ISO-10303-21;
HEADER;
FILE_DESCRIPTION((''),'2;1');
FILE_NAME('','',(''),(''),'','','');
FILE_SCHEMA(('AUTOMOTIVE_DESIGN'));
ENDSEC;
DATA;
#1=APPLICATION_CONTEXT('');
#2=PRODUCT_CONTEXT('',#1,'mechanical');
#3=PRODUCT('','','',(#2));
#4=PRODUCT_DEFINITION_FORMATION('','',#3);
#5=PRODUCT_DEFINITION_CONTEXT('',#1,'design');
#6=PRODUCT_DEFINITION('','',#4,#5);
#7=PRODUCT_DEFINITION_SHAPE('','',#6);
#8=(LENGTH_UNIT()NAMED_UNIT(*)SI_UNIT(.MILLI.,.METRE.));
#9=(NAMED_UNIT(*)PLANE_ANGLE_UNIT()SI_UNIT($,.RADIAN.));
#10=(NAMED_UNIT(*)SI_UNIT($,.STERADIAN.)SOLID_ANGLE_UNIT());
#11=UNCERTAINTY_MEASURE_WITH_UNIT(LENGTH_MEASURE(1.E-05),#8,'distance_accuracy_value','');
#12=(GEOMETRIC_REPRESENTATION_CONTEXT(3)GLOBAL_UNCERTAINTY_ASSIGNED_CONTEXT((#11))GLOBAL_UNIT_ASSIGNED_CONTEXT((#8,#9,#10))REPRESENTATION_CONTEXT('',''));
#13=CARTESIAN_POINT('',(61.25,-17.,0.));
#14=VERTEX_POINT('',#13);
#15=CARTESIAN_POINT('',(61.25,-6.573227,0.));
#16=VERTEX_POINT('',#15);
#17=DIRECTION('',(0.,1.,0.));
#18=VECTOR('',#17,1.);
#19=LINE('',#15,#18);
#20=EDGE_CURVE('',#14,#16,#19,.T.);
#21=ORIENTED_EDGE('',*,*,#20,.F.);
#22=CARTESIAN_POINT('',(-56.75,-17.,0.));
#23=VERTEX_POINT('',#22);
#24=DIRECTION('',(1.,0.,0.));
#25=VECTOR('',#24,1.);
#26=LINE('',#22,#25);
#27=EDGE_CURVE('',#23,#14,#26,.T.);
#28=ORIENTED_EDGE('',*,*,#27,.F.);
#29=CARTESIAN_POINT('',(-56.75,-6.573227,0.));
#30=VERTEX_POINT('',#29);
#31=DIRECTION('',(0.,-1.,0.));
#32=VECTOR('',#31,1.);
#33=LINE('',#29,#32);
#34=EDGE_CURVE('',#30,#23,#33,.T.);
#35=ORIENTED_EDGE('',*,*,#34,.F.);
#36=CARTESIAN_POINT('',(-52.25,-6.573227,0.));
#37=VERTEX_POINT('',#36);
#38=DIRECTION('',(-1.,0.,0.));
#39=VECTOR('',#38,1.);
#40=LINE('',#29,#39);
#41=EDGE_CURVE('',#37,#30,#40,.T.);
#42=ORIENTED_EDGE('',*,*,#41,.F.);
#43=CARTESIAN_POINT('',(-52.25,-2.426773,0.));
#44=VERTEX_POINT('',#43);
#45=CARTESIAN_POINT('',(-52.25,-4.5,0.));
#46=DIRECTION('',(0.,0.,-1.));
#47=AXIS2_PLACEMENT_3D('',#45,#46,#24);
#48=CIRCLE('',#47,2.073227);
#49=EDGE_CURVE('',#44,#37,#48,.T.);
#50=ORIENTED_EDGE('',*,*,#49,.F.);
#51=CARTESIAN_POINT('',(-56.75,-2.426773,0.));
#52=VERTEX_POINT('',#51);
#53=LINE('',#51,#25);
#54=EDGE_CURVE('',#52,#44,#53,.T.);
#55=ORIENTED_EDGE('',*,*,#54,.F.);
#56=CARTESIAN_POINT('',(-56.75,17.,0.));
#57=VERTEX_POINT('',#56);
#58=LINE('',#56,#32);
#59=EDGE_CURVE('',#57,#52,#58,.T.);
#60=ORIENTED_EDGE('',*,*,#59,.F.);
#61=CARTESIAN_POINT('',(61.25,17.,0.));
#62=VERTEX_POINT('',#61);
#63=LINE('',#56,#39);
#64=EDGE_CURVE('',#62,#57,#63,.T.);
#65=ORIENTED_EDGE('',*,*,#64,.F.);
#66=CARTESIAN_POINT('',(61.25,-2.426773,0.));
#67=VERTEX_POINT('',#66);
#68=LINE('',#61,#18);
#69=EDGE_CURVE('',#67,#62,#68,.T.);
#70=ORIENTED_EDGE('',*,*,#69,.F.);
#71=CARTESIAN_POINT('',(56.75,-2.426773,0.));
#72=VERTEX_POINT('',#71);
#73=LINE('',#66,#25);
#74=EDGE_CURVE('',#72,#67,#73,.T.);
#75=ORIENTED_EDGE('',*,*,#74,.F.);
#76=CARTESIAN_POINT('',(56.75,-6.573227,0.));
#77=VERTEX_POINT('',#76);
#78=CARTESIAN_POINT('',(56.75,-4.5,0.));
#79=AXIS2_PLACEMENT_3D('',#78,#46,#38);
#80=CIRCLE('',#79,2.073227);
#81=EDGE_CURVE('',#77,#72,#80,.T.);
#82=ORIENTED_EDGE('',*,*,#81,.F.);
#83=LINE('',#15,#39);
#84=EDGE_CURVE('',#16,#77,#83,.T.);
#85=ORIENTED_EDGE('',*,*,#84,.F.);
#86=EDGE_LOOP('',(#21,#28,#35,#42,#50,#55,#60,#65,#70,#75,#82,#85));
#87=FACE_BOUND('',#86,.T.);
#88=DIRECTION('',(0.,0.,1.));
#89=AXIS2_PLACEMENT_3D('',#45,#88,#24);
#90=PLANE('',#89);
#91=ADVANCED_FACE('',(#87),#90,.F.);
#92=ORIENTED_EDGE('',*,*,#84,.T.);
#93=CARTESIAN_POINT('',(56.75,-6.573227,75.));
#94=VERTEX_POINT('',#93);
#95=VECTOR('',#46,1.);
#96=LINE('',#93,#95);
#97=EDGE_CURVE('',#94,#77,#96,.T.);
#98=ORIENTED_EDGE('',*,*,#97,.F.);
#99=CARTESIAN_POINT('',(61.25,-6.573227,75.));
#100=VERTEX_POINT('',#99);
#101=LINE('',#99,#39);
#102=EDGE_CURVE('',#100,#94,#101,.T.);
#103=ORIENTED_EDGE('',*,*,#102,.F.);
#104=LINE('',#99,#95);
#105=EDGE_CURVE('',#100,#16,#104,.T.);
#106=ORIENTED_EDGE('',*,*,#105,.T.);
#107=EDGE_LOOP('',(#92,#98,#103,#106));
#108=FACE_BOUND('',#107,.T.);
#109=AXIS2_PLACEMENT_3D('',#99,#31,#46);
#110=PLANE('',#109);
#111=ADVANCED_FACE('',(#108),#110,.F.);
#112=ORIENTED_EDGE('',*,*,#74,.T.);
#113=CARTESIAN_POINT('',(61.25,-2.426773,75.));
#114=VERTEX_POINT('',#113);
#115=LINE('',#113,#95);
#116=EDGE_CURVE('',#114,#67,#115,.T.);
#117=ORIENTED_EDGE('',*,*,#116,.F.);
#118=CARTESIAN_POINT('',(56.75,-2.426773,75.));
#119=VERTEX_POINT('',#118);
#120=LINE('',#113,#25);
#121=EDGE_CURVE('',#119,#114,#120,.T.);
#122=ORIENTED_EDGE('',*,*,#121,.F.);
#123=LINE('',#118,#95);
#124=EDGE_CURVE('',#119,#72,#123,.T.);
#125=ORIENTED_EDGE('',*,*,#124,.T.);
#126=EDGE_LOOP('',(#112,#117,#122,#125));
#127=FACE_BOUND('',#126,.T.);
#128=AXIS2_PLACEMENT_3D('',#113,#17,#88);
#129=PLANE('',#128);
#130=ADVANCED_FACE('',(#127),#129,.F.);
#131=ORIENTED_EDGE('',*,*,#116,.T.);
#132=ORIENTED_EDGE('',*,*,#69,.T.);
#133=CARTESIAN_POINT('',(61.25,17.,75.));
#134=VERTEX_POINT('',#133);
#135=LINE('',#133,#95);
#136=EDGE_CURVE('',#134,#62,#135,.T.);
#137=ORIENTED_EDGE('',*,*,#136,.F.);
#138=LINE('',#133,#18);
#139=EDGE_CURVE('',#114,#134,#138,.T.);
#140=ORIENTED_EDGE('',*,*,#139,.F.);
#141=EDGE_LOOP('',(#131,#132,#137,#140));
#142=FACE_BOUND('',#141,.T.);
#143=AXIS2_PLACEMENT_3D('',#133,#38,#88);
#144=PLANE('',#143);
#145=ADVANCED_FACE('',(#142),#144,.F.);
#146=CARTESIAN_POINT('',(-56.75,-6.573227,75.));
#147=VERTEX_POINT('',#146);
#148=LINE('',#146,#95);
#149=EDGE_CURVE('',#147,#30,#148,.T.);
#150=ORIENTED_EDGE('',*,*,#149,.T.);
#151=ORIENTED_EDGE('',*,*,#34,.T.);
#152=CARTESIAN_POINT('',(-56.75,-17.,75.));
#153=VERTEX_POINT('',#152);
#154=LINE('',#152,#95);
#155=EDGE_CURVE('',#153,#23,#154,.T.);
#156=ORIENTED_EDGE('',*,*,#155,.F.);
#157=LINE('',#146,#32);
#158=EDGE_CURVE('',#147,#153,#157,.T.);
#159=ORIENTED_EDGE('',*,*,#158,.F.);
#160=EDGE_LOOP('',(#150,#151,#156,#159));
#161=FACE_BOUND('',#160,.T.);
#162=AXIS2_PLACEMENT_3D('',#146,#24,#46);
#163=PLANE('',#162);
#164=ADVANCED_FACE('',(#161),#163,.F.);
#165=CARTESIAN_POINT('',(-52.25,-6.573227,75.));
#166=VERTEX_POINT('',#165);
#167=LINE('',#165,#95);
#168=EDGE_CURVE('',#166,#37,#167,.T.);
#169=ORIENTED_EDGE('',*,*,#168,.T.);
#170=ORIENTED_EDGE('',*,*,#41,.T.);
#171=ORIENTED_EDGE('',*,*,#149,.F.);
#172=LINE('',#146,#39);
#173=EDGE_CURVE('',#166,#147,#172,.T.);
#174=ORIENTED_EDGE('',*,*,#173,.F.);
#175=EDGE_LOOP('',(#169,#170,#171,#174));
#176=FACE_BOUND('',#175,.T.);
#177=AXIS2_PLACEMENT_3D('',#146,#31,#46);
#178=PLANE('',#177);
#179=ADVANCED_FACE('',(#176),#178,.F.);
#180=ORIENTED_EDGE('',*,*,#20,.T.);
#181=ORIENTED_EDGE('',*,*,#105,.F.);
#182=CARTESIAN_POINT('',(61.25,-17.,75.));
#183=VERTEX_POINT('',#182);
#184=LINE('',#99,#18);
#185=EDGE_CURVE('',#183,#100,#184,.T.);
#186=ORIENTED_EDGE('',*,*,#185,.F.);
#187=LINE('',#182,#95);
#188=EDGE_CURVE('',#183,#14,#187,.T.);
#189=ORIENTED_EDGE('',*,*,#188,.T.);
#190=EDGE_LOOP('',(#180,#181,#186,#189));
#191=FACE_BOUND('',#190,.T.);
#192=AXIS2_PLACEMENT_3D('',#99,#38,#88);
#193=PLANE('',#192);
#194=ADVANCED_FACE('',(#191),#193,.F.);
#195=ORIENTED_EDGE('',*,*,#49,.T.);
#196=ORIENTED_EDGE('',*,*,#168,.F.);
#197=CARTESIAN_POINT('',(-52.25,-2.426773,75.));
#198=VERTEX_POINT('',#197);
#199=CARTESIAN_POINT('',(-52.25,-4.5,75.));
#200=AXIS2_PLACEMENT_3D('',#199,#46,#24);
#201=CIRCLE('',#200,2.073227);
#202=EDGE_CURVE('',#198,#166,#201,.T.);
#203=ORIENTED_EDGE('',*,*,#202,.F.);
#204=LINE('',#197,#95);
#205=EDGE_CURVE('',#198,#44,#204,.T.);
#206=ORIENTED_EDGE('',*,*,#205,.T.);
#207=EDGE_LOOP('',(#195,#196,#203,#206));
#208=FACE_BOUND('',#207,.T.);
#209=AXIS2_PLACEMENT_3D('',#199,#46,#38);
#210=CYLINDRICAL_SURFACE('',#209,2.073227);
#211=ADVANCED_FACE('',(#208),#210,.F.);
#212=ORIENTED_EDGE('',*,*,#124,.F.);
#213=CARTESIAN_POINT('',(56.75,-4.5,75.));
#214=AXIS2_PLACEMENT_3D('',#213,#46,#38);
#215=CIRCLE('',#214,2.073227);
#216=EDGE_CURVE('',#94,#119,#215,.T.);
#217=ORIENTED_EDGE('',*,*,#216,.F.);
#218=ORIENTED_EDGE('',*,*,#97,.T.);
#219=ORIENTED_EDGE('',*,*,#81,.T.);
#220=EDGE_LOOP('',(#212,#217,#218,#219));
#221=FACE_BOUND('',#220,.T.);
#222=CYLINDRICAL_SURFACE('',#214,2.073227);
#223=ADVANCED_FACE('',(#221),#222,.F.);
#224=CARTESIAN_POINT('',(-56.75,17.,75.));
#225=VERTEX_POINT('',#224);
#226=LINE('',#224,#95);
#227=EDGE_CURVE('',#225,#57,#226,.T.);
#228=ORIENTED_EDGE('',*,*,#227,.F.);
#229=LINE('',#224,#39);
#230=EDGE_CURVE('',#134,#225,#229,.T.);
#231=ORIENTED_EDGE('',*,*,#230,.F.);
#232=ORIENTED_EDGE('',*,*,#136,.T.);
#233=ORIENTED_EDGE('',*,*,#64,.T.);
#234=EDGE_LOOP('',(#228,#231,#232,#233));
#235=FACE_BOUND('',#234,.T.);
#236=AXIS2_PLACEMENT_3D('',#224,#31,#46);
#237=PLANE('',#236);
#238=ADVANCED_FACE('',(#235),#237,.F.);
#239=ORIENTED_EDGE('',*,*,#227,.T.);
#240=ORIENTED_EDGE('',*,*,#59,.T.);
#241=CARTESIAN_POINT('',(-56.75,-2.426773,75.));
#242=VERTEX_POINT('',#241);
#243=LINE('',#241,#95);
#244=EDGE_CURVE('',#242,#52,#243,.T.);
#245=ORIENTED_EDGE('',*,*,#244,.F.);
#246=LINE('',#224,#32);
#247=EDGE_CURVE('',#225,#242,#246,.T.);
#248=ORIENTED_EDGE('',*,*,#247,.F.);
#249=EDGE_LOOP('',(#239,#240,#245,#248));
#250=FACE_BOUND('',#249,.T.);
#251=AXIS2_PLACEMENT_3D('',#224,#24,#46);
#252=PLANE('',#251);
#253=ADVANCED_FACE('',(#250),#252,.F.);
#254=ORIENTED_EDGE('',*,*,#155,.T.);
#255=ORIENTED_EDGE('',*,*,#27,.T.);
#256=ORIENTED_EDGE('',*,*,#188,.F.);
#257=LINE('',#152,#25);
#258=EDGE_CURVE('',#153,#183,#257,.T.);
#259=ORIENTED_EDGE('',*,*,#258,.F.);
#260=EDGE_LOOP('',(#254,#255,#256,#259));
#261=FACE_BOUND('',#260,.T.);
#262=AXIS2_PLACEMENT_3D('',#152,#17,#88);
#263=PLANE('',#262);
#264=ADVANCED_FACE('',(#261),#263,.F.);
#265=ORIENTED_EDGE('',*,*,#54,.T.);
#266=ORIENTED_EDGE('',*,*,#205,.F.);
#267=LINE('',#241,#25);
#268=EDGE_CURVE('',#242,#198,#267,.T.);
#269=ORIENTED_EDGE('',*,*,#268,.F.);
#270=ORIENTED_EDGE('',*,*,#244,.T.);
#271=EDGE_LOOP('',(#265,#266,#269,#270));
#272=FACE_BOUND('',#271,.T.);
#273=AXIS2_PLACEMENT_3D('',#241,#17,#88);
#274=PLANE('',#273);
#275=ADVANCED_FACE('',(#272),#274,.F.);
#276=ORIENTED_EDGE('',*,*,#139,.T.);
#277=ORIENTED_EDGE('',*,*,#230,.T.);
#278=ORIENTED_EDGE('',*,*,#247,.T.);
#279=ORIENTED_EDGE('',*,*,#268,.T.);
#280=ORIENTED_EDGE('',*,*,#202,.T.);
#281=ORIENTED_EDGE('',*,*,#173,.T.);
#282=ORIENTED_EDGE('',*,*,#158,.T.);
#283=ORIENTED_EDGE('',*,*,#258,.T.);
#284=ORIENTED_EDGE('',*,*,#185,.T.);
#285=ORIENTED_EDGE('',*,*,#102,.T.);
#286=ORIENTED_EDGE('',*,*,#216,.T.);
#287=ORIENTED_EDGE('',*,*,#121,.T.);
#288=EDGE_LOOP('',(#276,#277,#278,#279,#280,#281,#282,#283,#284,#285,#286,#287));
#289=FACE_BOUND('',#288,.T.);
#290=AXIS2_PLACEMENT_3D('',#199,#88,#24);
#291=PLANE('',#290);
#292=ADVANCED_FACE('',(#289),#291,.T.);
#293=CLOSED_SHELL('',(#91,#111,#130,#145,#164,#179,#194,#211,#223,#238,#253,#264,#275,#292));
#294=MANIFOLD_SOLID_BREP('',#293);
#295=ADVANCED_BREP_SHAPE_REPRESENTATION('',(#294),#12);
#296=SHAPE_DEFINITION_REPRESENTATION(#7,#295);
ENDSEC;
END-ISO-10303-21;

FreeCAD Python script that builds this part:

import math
import FreeCAD as App
import Part
import Sketcher
Q = App.Units.Quantity

doc = App.newDocument("Part")
body = doc.addObject("PartDesign::Body", "Body")

sketch1 = body.newObject("Sketcher::SketchObject", "Sketch")
sketch1.AttachmentSupport = (doc.getObject("XY_Plane"), [""])
sketch1.MapMode = "FlatFace"
sketch1.addGeometry(Part.LineSegment(App.Vector(61.25, 17, 0), App.Vector(-56.75, 17, 0)), False)
sketch1.addGeometry(Part.LineSegment(App.Vector(-56.75, 17, 0), App.Vector(-56.75, -2.426773, 0)), False)
sketch1.addGeometry(Part.LineSegment(App.Vector(-56.75, -2.426773, 0), App.Vector(-52.25, -2.426773, 0)), False)
sketch1.addGeometry(Part.ArcOfCircle(Part.Circle(App.Vector(-52.25, -4.5, 0), App.Vector(0, 0, 1), 2.073227), math.radians(-90), math.radians(90)), False)
sketch1.addGeometry(Part.LineSegment(App.Vector(-52.25, -6.573227, 0), App.Vector(-56.75, -6.573227, 0)), False)
sketch1.addGeometry(Part.LineSegment(App.Vector(-56.75, -6.573227, 0), App.Vector(-56.75, -17, 0)), False)
sketch1.addGeometry(Part.LineSegment(App.Vector(-56.75, -17, 0), App.Vector(61.25, -17, 0)), False)
sketch1.addGeometry(Part.LineSegment(App.Vector(61.25, -17, 0), App.Vector(61.25, -6.573227, 0)), False)
sketch1.addGeometry(Part.LineSegment(App.Vector(61.25, -6.573227, 0), App.Vector(56.75, -6.573227, 0)), False)
sketch1.addGeometry(Part.ArcOfCircle(Part.Circle(App.Vector(56.75, -4.5, 0), App.Vector(0, 0, 1), 2.073227), math.radians(90), math.radians(270)), False)
sketch1.addGeometry(Part.LineSegment(App.Vector(56.75, -2.426773, 0), App.Vector(61.25, -2.426773, 0)), False)
sketch1.addGeometry(Part.LineSegment(App.Vector(61.25, -2.426773, 0), App.Vector(61.25, 17, 0)), False)
sketch1.addConstraint(Sketcher.Constraint("Coincident", 0, 2, 1, 1))
sketch1.addConstraint(Sketcher.Constraint("Coincident", 1, 2, 2, 1))
sketch1.addConstraint(Sketcher.Constraint("Tangent", 2, 2, 3, 2))
sketch1.addConstraint(Sketcher.Constraint("Tangent", 3, 1, 4, 1))
sketch1.addConstraint(Sketcher.Constraint("Coincident", 4, 2, 5, 1))
sketch1.addConstraint(Sketcher.Constraint("Coincident", 5, 2, 6, 1))
sketch1.addConstraint(Sketcher.Constraint("Coincident", 6, 2, 7, 1))
sketch1.addConstraint(Sketcher.Constraint("Coincident", 7, 2, 8, 1))
sketch1.addConstraint(Sketcher.Constraint("Tangent", 8, 2, 9, 2))
sketch1.addConstraint(Sketcher.Constraint("Tangent", 9, 1, 10, 1))
sketch1.addConstraint(Sketcher.Constraint("Coincident", 10, 2, 11, 1))
sketch1.addConstraint(Sketcher.Constraint("Coincident", 11, 2, 0, 1))
sketch1.addConstraint(Sketcher.Constraint("Horizontal", 0))
sketch1.addConstraint(Sketcher.Constraint("Vertical", 1))
sketch1.addConstraint(Sketcher.Constraint("Horizontal", 2))
sketch1.addConstraint(Sketcher.Constraint("Horizontal", 4))
sketch1.addConstraint(Sketcher.Constraint("Vertical", 5))
sketch1.addConstraint(Sketcher.Constraint("Horizontal", 6))
sketch1.addConstraint(Sketcher.Constraint("Vertical", 7))
sketch1.addConstraint(Sketcher.Constraint("Horizontal", 8))
sketch1.addConstraint(Sketcher.Constraint("Horizontal", 10))
sketch1.addConstraint(Sketcher.Constraint("Vertical", 11))
sketch1.addConstraint(Sketcher.Constraint("Equal", 3, 9))
sketch1.addConstraint(Sketcher.Constraint("Symmetric", 4, 2, 8, 2, -2))
sketch1.addConstraint(Sketcher.Constraint("Symmetric", 0, 2, 5, 2, -1))
sketch1.addConstraint(Sketcher.Constraint("Vertical", 7, 2, 10, 2))
sketch1.addConstraint(Sketcher.Constraint("Equal", 4, 8))
sketch1.addConstraint(Sketcher.Constraint("DistanceX", 0, 2, 0, 1, Q("118 mm")))
sketch1.addConstraint(Sketcher.Constraint("DistanceX", 2, 1, 2, 2, Q("4.5 mm")))
sketch1.addConstraint(Sketcher.Constraint("DistanceY", -1, 1, 0, 2, Q("17 mm")))
sketch1.addConstraint(Sketcher.Constraint("DistanceY", 3, 3, -1, 1, Q("4.5 mm")))
sketch1.addConstraint(Sketcher.Constraint("Radius", 3, Q("2.073227 mm")))
pad1 = body.newObject("PartDesign::Pad", "Pad")
pad1.Profile = sketch1
pad1.Length = 75

doc.recompute()
